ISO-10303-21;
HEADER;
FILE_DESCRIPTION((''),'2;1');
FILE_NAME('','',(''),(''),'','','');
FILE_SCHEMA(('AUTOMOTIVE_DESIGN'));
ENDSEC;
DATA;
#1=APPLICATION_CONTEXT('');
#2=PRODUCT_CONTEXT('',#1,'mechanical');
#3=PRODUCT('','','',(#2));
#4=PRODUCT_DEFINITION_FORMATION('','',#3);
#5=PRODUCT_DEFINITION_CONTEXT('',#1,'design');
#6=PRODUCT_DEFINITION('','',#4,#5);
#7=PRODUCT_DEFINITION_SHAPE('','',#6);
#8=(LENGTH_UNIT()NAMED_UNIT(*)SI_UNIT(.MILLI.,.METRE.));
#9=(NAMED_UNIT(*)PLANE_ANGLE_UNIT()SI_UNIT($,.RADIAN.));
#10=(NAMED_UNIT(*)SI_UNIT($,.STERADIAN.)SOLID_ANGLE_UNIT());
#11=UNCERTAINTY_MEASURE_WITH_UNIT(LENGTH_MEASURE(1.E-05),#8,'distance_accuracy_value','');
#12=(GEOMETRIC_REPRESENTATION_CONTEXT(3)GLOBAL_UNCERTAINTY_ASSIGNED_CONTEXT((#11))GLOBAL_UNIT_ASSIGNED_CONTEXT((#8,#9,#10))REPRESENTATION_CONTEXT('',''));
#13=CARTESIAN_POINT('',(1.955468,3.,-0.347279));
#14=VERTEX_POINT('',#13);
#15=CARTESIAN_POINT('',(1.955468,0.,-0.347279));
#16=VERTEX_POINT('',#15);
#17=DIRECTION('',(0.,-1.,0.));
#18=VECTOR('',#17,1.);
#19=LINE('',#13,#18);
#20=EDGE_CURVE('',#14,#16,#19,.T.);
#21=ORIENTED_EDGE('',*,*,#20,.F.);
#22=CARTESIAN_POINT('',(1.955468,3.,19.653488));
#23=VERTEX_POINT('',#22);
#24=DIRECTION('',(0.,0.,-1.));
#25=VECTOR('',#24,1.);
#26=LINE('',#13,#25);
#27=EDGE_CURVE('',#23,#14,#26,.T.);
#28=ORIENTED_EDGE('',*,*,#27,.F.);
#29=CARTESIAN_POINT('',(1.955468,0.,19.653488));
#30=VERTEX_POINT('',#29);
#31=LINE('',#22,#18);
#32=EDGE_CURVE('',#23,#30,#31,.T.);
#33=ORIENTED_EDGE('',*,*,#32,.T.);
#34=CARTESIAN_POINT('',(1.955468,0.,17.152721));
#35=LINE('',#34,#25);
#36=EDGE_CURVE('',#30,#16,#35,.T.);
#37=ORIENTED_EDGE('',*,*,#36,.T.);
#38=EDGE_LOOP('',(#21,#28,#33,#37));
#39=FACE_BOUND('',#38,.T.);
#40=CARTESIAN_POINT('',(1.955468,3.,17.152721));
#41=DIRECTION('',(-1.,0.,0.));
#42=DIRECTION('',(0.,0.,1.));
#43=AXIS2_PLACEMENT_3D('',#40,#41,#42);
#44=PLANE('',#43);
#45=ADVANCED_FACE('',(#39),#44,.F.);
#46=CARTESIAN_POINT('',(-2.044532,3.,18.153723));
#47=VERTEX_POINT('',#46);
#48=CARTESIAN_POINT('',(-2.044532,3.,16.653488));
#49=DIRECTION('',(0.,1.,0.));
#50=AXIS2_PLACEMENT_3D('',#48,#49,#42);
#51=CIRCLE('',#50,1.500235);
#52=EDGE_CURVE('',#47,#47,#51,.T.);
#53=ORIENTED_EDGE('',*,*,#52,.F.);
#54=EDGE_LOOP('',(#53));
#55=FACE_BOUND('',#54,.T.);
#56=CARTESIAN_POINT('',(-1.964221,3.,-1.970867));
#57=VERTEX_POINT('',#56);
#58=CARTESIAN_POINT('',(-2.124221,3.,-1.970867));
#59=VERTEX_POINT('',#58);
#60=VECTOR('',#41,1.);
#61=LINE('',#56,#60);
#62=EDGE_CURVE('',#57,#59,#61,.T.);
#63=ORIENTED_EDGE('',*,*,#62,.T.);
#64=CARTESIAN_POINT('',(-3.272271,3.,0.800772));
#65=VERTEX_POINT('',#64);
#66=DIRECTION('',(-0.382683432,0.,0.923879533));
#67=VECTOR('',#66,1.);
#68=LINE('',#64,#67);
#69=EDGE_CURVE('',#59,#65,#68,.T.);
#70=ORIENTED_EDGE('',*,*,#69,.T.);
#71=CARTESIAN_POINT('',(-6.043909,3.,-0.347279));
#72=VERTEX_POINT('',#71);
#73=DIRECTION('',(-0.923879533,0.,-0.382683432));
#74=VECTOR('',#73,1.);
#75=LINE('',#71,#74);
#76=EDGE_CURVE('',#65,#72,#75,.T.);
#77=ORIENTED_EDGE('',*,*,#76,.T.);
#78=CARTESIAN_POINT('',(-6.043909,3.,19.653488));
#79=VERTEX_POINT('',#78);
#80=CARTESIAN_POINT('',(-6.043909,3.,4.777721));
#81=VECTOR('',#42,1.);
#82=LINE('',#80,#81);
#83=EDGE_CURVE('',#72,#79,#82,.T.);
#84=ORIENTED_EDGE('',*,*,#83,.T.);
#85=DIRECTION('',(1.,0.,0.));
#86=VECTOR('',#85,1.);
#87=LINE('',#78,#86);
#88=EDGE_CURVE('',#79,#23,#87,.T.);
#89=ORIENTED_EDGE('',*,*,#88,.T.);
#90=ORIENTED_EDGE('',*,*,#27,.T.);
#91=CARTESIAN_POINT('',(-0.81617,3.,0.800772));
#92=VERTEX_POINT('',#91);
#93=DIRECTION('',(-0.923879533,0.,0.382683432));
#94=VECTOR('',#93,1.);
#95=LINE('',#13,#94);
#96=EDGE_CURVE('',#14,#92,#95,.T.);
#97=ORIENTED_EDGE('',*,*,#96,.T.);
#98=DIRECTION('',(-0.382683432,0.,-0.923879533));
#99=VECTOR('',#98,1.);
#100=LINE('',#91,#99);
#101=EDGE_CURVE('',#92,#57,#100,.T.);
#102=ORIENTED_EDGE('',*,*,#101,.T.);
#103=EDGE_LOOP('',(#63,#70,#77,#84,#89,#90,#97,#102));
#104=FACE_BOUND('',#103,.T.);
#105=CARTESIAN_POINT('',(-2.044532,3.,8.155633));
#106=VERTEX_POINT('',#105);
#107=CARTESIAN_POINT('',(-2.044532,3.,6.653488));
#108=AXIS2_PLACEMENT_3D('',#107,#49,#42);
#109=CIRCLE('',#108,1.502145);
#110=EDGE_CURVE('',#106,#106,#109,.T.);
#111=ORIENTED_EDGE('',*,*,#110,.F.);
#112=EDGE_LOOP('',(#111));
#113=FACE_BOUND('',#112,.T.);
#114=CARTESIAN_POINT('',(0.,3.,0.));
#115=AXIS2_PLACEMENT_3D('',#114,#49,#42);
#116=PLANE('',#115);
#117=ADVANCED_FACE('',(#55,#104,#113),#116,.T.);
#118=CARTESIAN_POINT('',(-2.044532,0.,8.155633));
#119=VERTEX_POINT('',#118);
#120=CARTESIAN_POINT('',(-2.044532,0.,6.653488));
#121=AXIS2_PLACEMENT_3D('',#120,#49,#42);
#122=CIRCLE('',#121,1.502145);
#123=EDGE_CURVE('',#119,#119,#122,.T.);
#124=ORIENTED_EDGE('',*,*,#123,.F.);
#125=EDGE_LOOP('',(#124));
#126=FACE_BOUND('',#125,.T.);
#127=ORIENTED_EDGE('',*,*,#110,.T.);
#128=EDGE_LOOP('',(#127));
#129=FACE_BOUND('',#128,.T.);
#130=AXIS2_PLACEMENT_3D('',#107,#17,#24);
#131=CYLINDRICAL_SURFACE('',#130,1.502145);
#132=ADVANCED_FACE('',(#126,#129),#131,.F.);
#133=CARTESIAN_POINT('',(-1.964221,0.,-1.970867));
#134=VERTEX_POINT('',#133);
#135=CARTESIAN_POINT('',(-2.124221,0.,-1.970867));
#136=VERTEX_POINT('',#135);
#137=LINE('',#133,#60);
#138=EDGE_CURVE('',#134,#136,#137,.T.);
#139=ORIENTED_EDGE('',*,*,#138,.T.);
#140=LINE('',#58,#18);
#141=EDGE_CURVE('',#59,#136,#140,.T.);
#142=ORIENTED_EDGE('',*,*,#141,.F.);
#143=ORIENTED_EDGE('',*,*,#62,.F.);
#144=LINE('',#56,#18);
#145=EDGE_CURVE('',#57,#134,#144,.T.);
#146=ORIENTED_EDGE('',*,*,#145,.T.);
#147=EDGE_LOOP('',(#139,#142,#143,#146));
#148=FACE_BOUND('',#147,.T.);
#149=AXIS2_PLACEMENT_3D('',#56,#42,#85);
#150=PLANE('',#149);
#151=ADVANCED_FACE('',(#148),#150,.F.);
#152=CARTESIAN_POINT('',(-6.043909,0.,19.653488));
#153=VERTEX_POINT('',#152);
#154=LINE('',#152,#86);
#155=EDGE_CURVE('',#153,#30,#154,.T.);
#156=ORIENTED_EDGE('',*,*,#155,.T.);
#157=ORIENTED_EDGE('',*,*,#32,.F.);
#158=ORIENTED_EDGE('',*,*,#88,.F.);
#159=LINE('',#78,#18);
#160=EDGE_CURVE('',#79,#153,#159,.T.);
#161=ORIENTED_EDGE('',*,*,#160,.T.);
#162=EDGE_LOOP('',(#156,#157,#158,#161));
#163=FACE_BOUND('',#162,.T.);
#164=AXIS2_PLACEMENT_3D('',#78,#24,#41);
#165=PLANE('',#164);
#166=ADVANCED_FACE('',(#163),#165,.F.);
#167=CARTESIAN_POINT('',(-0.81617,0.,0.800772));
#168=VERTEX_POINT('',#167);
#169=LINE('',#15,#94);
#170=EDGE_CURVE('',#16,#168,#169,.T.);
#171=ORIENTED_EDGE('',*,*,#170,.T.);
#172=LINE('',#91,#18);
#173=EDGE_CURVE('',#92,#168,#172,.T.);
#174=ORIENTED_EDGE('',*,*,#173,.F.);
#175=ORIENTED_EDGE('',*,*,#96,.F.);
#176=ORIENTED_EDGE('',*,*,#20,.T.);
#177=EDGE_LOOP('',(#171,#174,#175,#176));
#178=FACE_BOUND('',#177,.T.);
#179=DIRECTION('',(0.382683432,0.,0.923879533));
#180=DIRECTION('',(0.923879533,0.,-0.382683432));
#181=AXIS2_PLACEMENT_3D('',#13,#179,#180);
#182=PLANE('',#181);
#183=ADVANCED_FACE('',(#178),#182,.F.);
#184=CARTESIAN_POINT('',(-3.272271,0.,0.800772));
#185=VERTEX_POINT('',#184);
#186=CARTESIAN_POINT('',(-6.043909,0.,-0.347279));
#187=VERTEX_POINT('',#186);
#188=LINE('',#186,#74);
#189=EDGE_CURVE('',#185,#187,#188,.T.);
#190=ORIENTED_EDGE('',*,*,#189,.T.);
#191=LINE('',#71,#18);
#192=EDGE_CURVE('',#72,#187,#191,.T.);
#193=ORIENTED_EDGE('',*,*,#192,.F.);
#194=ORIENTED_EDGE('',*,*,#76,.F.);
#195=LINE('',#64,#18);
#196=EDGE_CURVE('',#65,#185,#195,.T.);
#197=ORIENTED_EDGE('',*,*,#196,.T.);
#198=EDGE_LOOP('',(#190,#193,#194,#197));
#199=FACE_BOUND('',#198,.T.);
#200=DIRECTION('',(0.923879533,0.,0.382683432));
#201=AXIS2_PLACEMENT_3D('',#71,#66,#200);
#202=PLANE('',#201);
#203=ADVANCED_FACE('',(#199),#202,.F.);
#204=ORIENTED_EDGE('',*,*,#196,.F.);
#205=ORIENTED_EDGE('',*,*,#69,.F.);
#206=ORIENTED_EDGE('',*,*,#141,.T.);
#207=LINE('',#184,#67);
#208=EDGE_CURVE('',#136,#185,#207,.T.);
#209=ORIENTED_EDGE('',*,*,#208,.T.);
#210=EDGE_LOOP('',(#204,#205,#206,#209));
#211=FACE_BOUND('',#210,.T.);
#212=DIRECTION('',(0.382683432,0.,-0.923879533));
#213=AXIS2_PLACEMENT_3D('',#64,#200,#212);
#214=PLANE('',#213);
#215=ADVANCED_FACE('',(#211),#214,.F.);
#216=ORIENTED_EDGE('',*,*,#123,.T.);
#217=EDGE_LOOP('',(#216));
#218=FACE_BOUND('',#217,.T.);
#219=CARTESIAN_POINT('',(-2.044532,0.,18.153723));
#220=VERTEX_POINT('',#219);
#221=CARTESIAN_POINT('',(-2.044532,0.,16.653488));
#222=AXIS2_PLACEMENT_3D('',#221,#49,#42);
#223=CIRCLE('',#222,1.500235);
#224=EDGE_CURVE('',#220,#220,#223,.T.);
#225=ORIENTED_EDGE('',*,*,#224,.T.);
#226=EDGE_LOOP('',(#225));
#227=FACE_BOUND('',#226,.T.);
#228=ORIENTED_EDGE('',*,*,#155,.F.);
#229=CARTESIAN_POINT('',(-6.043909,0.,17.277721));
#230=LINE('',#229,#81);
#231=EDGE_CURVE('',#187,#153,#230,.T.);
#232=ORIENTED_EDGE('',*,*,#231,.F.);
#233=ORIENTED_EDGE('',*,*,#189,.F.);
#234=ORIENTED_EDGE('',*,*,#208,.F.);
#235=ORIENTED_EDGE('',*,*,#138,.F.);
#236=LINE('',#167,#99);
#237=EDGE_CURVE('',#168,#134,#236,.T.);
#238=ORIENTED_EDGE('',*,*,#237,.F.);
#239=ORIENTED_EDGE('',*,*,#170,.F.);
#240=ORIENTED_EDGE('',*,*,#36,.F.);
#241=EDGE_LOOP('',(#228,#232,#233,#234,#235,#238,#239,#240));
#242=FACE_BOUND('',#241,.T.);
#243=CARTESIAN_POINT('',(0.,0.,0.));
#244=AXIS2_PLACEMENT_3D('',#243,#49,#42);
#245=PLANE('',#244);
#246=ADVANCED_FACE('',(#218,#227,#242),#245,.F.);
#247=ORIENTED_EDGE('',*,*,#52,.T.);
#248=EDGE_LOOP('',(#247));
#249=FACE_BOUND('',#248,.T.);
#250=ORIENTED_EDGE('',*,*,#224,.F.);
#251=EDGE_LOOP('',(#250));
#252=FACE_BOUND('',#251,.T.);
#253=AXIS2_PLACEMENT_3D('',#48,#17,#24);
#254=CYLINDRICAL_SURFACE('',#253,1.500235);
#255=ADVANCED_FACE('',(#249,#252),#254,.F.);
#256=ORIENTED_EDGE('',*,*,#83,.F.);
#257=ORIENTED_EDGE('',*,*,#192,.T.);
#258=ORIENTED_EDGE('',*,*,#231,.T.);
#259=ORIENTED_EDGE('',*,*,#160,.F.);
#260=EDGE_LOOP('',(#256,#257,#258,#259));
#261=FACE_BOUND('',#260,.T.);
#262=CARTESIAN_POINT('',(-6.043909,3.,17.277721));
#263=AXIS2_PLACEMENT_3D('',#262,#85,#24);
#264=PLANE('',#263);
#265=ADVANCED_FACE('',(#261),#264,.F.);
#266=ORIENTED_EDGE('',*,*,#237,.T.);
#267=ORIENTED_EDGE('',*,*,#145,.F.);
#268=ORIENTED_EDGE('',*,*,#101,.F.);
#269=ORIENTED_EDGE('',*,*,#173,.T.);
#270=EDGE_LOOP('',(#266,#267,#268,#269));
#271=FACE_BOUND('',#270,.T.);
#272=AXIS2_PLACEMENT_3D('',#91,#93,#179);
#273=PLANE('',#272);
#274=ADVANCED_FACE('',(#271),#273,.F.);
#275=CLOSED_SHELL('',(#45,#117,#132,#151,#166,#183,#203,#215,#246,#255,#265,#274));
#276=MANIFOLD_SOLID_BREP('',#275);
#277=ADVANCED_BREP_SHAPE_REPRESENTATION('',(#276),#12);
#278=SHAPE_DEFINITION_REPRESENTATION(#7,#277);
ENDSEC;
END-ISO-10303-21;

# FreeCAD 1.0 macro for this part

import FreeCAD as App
import Part
import Sketcher

V = App.Vector
Q = App.Units.Quantity

doc = App.newDocument("Part")
params = doc.addObject("Spreadsheet::Sheet", "Params")
for row, (alias, value) in enumerate([
    ("sketch1_length", "3 mm"),
    ("sketch1_width", "0.16 mm"),
    ("pad1_length", "3 mm"),
], start=1):
    params.set(f"A{row}", alias)
    params.set(f"B{row}", "=" + value)
    params.setAlias(f"B{row}", alias)

body = doc.addObject("PartDesign::Body", "Body")

sketch1 = doc.addObject("Sketcher::SketchObject", "Sketch")
body.addObject(sketch1)
sketch1.AttachmentSupport = (doc.XZ_Plane, [""])
sketch1.MapMode = "FlatFace"
sketch1.addGeometry(Part.LineSegment(V(-2.12, -1.97, 0), V(-3.27, 0.8, 0)), False)
sketch1.addGeometry(Part.LineSegment(V(-3.27, 0.8, 0), V(-6.04, -0.35, 0)), False)
sketch1.addGeometry(Part.LineSegment(V(-6.04, -0.35, 0), V(-6.04, 19.65, 0)), False)
sketch1.addGeometry(Part.LineSegment(V(-6.04, 19.65, 0), V(1.96, 19.65, 0)), False)
sketch1.addGeometry(Part.LineSegment(V(1.96, 19.65, 0), V(1.96, -0.35, 0)), False)
sketch1.addGeometry(Part.LineSegment(V(1.96, -0.35, 0), V(-0.82, 0.8, 0)), False)
sketch1.addGeometry(Part.LineSegment(V(-0.82, 0.8, 0), V(-1.96, -1.97, 0)), False)
sketch1.addGeometry(Part.LineSegment(V(-1.96, -1.97, 0), V(-2.12, -1.97, 0)), False)
sketch1.addGeometry(Part.Circle(V(-2.04, 16.65, 0), V(0, 0, 1), 1.5), False)
sketch1.addGeometry(Part.Circle(V(-2.04, 6.65, 0), V(0, 0, 1), 1.5), False)
sketch1.addConstraint(Sketcher.Constraint("Coincident", 0, 2, 1, 1))
sketch1.addConstraint(Sketcher.Constraint("Coincident", 1, 2, 2, 1))
sketch1.addConstraint(Sketcher.Constraint("Coincident", 2, 2, 3, 1))
sketch1.addConstraint(Sketcher.Constraint("Coincident", 3, 2, 4, 1))
sketch1.addConstraint(Sketcher.Constraint("Coincident", 4, 2, 5, 1))
sketch1.addConstraint(Sketcher.Constraint("Coincident", 5, 2, 6, 1))
sketch1.addConstraint(Sketcher.Constraint("Coincident", 6, 2, 7, 1))
sketch1.addConstraint(Sketcher.Constraint("Coincident", 7, 2, 0, 1))
sketch1.addConstraint(Sketcher.Constraint("Vertical", 2))
sketch1.addConstraint(Sketcher.Constraint("Horizontal", 3))
sketch1.addConstraint(Sketcher.Constraint("Vertical", 4))
sketch1.addConstraint(Sketcher.Constraint("Horizontal", 7))
sketch1.addConstraint(Sketcher.Constraint("Perpendicular", 0, 1))
sketch1.addConstraint(Sketcher.Constraint("Perpendicular", 5, 6))
sketch1.addConstraint(Sketcher.Constraint("Horizontal", 1, 2, 4, 2))
sketch1.addConstraint(Sketcher.Constraint("Horizontal", 0, 2, 5, 2))
sketch1.addConstraint(Sketcher.Constraint("Vertical", 8, 3, 9, 3))
sketch1.addConstraint(Sketcher.Constraint("Equal", 0, 1))
sketch1.addConstraint(Sketcher.Constraint("Equal", 1, 5))
sketch1.addConstraint(Sketcher.Constraint("Distance", 0, 3.0))
sketch1.addConstraint(Sketcher.Constraint("Angle", 0, Q("112.5 deg")))
sketch1.addConstraint(Sketcher.Constraint("DistanceY", 9, 3, 8, 3, 10.0))
sketch1.addConstraint(Sketcher.Constraint("DistanceY", 8, 3, 2, 2, 3.0))
sketch1.addConstraint(Sketcher.Constraint("DistanceX", 8, 3, 3, 2, 4.0))
sketch1.addConstraint(Sketcher.Constraint("DistanceX", 7, 2, 7, 1, 0.16))
sketch1.addConstraint(Sketcher.Constraint("Diameter", 8, 3.000471))
sketch1.addConstraint(Sketcher.Constraint("Diameter", 9, 3.00429))
sketch1.addConstraint(Sketcher.Constraint("DistanceY", 2, 1, 2, 2, 20.000767))
sketch1.addConstraint(Sketcher.Constraint("DistanceX", 8, 3, -1, 1, 2.044532))
sketch1.addConstraint(Sketcher.Constraint("DistanceY", -1, 1, 8, 3, 16.653488))
sketch1.setExpression("Constraints[19]", "Params.sketch1_length")
sketch1.setExpression("Constraints[24]", "Params.sketch1_width")
pad1 = doc.addObject("PartDesign::Pad", "Pad")
body.addObject(pad1)
pad1.Profile = sketch1
pad1.setExpression("Length", "Params.pad1_length")
pad1.Reversed = True

doc.recompute()
